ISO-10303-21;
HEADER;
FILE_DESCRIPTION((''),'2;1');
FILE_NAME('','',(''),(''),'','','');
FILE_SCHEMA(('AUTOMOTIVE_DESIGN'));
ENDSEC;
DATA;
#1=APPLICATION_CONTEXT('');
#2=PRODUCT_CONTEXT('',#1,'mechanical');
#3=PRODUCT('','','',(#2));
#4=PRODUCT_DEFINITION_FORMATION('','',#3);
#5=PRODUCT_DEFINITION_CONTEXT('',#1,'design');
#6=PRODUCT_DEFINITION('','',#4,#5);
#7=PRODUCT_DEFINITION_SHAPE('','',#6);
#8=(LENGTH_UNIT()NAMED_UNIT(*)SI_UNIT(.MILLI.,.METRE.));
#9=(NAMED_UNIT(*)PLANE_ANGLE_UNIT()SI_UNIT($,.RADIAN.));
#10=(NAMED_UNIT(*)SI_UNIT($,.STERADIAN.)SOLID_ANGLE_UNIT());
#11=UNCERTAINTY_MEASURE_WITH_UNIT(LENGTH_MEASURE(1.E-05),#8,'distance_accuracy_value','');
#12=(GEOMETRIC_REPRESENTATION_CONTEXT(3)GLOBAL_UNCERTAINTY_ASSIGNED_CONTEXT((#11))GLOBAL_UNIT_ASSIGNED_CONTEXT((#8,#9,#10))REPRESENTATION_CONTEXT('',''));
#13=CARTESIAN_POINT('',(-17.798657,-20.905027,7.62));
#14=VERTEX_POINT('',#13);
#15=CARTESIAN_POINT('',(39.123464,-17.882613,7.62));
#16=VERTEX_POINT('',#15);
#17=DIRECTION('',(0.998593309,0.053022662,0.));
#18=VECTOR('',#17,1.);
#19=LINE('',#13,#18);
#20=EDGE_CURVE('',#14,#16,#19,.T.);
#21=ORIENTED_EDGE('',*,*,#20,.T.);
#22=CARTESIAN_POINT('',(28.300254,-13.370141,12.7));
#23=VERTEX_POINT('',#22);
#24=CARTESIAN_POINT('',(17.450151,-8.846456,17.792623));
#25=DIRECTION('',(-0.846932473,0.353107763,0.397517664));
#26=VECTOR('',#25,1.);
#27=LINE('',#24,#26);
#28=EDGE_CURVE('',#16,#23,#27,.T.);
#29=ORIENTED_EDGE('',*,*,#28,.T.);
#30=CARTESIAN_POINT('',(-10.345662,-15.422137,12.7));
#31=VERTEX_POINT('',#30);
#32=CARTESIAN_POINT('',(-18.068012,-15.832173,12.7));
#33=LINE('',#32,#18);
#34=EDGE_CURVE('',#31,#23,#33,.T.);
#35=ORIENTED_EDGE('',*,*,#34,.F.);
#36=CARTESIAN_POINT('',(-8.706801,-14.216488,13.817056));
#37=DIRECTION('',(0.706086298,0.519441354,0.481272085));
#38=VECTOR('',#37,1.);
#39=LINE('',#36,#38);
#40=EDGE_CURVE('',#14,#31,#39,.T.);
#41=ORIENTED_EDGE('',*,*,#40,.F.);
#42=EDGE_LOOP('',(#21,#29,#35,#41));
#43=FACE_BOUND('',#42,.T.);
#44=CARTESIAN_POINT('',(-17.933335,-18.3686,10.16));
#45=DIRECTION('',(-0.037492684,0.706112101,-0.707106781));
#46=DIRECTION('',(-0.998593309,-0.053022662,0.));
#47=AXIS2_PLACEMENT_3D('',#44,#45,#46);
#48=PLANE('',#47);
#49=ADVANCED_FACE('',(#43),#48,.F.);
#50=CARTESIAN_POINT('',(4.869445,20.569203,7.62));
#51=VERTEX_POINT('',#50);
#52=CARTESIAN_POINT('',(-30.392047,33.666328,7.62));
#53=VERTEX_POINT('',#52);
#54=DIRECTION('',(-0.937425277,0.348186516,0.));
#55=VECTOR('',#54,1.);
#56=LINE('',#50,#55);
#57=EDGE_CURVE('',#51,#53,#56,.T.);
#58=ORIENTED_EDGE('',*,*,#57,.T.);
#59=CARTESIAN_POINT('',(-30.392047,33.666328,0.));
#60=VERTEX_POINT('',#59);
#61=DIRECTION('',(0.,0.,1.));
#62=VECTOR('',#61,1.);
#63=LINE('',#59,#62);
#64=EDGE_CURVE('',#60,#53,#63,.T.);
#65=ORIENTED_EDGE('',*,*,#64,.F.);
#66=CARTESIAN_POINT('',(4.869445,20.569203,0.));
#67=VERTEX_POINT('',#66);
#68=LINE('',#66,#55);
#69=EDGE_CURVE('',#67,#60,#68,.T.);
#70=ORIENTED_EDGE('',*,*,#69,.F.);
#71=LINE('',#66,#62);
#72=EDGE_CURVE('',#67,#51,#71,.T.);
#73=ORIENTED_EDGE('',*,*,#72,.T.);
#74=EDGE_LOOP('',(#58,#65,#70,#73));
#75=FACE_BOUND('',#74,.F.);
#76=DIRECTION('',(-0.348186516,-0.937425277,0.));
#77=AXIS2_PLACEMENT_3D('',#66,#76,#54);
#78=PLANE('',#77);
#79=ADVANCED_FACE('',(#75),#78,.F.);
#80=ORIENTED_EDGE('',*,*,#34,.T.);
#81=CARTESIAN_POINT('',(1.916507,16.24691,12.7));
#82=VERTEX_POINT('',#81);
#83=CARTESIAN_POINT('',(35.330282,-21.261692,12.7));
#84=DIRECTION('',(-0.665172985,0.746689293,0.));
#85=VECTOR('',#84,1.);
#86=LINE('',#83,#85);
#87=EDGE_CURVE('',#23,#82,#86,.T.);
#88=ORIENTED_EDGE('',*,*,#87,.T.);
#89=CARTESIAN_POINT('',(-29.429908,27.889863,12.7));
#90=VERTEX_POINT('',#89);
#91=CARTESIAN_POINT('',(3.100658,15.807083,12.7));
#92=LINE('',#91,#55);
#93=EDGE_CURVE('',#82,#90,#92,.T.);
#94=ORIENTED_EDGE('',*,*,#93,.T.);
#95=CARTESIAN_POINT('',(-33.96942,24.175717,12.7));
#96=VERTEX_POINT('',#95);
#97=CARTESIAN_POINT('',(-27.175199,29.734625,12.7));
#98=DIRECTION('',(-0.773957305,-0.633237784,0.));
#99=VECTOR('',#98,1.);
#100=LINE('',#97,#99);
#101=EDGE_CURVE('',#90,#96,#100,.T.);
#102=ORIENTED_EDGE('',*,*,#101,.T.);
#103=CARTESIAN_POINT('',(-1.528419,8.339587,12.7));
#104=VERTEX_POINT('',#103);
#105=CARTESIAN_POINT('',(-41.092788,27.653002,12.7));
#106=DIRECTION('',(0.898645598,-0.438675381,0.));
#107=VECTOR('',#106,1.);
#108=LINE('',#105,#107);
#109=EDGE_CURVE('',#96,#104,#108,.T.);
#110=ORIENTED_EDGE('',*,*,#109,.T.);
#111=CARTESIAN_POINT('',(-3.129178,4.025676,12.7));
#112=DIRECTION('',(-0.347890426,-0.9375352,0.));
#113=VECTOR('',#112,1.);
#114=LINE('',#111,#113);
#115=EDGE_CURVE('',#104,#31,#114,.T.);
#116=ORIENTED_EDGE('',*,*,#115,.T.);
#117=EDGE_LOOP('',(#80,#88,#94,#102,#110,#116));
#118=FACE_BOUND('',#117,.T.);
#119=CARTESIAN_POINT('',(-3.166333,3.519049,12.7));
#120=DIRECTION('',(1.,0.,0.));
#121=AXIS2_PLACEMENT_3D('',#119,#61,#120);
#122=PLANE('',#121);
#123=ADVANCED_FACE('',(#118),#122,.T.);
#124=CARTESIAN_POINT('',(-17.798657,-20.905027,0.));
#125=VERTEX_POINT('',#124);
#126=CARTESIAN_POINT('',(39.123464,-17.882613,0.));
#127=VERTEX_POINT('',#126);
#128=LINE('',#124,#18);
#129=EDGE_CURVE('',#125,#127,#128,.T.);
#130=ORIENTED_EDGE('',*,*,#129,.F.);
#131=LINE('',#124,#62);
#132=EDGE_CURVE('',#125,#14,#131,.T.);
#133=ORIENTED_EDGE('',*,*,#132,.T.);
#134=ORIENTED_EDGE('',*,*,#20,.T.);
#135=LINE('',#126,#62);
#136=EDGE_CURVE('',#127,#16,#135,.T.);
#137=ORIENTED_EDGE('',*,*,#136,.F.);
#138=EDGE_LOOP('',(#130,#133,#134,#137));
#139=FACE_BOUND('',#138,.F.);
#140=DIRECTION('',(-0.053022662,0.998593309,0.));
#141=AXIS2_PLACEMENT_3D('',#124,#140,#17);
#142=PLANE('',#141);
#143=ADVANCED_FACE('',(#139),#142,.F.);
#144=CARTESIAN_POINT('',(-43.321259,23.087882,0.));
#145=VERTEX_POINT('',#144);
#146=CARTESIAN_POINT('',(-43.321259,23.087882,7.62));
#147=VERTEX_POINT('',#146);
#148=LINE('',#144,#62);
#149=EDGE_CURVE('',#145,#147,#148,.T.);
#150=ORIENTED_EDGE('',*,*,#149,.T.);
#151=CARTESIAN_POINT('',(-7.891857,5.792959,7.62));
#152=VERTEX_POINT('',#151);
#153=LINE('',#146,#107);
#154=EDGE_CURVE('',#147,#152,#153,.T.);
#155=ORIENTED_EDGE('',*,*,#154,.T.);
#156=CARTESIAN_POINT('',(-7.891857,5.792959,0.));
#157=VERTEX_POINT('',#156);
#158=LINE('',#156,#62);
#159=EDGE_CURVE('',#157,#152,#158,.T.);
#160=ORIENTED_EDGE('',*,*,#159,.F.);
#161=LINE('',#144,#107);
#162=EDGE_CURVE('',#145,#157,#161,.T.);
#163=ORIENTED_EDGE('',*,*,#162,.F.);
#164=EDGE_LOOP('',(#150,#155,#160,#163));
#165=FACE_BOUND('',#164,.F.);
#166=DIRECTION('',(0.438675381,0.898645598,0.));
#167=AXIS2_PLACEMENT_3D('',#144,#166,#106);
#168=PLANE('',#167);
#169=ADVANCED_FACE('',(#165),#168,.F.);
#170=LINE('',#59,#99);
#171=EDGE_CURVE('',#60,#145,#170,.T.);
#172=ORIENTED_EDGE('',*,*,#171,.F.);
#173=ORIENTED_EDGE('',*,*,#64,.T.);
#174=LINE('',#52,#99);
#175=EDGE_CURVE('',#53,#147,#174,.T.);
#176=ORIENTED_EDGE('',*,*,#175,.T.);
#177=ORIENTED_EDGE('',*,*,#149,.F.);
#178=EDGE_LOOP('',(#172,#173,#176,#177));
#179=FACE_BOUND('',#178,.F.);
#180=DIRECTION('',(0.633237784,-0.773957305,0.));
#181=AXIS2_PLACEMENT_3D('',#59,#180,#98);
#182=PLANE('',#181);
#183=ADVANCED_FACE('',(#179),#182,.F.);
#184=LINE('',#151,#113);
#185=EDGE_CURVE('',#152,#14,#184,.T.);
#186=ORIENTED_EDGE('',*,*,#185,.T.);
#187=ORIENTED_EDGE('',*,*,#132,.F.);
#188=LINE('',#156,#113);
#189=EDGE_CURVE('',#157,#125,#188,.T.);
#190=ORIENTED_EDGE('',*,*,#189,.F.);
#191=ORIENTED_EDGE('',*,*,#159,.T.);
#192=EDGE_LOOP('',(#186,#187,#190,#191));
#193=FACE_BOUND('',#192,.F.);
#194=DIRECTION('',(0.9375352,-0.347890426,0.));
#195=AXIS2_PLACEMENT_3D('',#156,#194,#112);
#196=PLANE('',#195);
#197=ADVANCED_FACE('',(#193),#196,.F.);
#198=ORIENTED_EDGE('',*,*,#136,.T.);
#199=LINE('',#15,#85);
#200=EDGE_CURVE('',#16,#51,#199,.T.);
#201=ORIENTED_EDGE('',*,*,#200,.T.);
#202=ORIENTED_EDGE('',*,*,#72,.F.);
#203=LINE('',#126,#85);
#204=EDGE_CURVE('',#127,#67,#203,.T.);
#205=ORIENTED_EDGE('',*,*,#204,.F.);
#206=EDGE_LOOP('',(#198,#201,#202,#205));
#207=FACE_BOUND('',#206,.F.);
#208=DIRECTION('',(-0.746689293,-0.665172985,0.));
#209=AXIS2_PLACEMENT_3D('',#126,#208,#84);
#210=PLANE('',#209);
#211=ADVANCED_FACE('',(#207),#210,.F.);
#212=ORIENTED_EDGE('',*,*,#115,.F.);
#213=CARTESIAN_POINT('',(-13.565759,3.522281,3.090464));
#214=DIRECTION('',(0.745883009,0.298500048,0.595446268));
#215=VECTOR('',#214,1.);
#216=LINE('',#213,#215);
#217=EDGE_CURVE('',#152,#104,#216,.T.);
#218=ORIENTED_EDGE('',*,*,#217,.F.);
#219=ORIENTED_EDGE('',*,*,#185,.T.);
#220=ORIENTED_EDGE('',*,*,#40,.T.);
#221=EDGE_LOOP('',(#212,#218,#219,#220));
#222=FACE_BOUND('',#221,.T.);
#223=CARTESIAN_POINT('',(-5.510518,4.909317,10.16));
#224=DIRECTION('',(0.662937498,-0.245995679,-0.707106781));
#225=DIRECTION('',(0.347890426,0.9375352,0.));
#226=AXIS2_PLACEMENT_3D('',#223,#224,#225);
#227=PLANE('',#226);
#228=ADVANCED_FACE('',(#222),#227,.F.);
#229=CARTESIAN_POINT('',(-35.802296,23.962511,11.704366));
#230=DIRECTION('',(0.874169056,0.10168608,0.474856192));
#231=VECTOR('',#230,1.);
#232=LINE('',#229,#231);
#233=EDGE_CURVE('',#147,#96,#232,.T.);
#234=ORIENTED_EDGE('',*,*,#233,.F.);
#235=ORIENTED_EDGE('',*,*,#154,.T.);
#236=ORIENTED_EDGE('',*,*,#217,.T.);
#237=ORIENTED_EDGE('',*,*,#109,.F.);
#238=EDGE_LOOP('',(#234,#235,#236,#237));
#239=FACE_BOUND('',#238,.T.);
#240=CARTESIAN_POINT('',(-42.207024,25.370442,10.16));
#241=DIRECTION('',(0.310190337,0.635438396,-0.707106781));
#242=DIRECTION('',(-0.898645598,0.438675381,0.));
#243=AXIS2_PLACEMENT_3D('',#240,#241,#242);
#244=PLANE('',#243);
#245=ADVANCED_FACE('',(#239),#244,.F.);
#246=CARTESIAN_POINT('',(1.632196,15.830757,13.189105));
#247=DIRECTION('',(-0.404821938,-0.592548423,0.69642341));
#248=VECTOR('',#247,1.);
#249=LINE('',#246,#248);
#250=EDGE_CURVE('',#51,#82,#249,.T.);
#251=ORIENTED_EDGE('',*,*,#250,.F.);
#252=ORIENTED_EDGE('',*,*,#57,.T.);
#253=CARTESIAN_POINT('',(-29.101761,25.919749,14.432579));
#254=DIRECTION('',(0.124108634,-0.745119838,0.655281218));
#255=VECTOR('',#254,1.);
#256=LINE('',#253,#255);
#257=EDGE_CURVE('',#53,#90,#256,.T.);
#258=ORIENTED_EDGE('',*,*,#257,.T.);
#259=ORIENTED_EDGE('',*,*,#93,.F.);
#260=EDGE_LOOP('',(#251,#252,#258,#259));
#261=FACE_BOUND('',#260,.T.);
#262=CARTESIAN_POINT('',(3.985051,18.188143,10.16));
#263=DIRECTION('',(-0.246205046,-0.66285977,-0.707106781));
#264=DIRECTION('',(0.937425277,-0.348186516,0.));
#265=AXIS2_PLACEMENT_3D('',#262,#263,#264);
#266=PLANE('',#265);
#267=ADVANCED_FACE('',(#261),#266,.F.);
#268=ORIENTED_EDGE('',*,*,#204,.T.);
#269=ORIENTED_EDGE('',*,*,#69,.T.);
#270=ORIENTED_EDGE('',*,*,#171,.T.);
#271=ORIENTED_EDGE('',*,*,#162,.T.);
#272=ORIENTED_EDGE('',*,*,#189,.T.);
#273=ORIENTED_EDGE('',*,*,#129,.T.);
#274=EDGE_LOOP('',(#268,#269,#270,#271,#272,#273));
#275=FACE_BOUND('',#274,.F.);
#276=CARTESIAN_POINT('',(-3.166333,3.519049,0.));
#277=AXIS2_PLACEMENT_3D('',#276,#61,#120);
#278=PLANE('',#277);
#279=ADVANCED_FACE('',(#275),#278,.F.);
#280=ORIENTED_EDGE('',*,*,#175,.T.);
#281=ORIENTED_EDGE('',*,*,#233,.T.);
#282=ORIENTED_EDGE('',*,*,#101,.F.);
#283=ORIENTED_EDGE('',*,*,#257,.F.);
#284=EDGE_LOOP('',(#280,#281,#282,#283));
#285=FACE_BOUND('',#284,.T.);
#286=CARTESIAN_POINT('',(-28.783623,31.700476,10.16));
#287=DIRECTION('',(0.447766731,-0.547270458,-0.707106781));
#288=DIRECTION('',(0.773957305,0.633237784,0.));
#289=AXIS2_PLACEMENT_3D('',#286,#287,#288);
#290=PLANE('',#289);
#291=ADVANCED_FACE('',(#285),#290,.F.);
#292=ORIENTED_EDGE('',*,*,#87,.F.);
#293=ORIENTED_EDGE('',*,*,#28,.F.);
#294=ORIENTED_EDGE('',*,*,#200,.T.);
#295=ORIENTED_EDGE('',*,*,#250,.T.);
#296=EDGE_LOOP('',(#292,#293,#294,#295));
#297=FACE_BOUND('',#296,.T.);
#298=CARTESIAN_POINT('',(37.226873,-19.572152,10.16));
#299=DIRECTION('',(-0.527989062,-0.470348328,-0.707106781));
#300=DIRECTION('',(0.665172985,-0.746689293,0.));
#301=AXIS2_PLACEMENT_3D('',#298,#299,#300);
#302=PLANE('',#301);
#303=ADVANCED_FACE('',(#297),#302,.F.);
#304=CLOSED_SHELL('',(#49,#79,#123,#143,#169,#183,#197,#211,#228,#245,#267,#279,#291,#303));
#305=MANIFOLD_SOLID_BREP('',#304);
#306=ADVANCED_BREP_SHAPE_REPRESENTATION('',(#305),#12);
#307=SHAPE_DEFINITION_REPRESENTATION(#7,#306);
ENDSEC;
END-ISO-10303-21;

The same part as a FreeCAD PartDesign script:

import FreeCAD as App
import Part
import Sketcher

V = App.Vector
Q = App.Units.Quantity


def edges_at(feature, points):
    """Names of the edges that pass closest to the given points."""
    edges = feature.Shape.Edges
    near = lambda p: min(range(len(edges)), key=lambda i: edges[i].distToShape(Part.Vertex(*p))[0])
    return sorted({f"Edge{near(p) + 1}" for p in points})


def add_polygon(sketch, points):
    """Adds a closed chain of lines whose ends are joined by coincident constraints."""
    first, n = sketch.GeometryCount, len(points)
    for a, b in zip(points, points[1:] + points[:1]):
        sketch.addGeometry(Part.LineSegment(App.Vector(*a, 0), App.Vector(*b, 0)), False)
    for i in range(n):
        sketch.addConstraint(Sketcher.Constraint("Coincident", first + i, 2, first + (i + 1) % n, 1))

doc = App.newDocument("Part")
body = doc.addObject("PartDesign::Body", "Body")

sketch1 = doc.addObject("Sketcher::SketchObject", "Sketch")
body.addObject(sketch1)
sketch1.AttachmentSupport = (doc.XY_Plane, [""])
sketch1.MapMode = "FlatFace"
add_polygon(sketch1, [(-30, 34), (-43, 23), (-8, 6), (-18, -21), (39, -18), (5, 21)])
sketch1.addConstraint([
    Sketcher.Constraint("DistanceX", 0, 2, 1, 2, Q("35.429402 mm")),
    Sketcher.Constraint("DistanceX", 2, 2, 1, 2, Q("9.9068 mm")),
    Sketcher.Constraint("DistanceX", 2, 2, 4, 2, Q("22.668102 mm")),
    Sketcher.Constraint("Distance", 0, Q("16.70533 mm")),
    Sketcher.Constraint("DistanceX", 0, 2, -1, 1, Q("43.321259 mm")),
    Sketcher.Constraint("DistanceY", -1, 1, 1, 2, Q("5.792959 mm")),
    Sketcher.Constraint("DistanceY", 2, 2, 0, 2, Q("43.992909 mm")),
    Sketcher.Constraint("DistanceX", 1, 2, 3, 2, Q("47.015321 mm")),
    Sketcher.Constraint("DistanceY", 3, 2, 1, 2, Q("23.675572 mm")),
    Sketcher.Constraint("DistanceY", 2, 2, 4, 2, Q("41.47423 mm")),
    Sketcher.Constraint("DistanceX", 0, 2, 5, 2, Q("12.929212 mm")),
    Sketcher.Constraint("DistanceY", 1, 2, 5, 2, Q("27.873369 mm")),
])
pad1 = doc.addObject("PartDesign::Pad", "Pad")
body.addObject(pad1)
pad1.Profile = sketch1
pad1.Length = Q("0.5 in")
doc.recompute()

chamfer = doc.addObject("PartDesign::Chamfer", "Chamfer")
body.addObject(chamfer)
chamfer.Base = (pad1, edges_at(pad1, [
    (-12.761, 27.118, 12.7),
    (-36.857, 28.377, 12.7),
    (-25.607, 14.44, 12.7),
    (-12.845, -7.556, 12.7),
    (10.662, -19.394, 12.7),
    (21.996, 1.343, 12.7),
]))
chamfer.Size = Q("0.2 in")

doc.recompute()
